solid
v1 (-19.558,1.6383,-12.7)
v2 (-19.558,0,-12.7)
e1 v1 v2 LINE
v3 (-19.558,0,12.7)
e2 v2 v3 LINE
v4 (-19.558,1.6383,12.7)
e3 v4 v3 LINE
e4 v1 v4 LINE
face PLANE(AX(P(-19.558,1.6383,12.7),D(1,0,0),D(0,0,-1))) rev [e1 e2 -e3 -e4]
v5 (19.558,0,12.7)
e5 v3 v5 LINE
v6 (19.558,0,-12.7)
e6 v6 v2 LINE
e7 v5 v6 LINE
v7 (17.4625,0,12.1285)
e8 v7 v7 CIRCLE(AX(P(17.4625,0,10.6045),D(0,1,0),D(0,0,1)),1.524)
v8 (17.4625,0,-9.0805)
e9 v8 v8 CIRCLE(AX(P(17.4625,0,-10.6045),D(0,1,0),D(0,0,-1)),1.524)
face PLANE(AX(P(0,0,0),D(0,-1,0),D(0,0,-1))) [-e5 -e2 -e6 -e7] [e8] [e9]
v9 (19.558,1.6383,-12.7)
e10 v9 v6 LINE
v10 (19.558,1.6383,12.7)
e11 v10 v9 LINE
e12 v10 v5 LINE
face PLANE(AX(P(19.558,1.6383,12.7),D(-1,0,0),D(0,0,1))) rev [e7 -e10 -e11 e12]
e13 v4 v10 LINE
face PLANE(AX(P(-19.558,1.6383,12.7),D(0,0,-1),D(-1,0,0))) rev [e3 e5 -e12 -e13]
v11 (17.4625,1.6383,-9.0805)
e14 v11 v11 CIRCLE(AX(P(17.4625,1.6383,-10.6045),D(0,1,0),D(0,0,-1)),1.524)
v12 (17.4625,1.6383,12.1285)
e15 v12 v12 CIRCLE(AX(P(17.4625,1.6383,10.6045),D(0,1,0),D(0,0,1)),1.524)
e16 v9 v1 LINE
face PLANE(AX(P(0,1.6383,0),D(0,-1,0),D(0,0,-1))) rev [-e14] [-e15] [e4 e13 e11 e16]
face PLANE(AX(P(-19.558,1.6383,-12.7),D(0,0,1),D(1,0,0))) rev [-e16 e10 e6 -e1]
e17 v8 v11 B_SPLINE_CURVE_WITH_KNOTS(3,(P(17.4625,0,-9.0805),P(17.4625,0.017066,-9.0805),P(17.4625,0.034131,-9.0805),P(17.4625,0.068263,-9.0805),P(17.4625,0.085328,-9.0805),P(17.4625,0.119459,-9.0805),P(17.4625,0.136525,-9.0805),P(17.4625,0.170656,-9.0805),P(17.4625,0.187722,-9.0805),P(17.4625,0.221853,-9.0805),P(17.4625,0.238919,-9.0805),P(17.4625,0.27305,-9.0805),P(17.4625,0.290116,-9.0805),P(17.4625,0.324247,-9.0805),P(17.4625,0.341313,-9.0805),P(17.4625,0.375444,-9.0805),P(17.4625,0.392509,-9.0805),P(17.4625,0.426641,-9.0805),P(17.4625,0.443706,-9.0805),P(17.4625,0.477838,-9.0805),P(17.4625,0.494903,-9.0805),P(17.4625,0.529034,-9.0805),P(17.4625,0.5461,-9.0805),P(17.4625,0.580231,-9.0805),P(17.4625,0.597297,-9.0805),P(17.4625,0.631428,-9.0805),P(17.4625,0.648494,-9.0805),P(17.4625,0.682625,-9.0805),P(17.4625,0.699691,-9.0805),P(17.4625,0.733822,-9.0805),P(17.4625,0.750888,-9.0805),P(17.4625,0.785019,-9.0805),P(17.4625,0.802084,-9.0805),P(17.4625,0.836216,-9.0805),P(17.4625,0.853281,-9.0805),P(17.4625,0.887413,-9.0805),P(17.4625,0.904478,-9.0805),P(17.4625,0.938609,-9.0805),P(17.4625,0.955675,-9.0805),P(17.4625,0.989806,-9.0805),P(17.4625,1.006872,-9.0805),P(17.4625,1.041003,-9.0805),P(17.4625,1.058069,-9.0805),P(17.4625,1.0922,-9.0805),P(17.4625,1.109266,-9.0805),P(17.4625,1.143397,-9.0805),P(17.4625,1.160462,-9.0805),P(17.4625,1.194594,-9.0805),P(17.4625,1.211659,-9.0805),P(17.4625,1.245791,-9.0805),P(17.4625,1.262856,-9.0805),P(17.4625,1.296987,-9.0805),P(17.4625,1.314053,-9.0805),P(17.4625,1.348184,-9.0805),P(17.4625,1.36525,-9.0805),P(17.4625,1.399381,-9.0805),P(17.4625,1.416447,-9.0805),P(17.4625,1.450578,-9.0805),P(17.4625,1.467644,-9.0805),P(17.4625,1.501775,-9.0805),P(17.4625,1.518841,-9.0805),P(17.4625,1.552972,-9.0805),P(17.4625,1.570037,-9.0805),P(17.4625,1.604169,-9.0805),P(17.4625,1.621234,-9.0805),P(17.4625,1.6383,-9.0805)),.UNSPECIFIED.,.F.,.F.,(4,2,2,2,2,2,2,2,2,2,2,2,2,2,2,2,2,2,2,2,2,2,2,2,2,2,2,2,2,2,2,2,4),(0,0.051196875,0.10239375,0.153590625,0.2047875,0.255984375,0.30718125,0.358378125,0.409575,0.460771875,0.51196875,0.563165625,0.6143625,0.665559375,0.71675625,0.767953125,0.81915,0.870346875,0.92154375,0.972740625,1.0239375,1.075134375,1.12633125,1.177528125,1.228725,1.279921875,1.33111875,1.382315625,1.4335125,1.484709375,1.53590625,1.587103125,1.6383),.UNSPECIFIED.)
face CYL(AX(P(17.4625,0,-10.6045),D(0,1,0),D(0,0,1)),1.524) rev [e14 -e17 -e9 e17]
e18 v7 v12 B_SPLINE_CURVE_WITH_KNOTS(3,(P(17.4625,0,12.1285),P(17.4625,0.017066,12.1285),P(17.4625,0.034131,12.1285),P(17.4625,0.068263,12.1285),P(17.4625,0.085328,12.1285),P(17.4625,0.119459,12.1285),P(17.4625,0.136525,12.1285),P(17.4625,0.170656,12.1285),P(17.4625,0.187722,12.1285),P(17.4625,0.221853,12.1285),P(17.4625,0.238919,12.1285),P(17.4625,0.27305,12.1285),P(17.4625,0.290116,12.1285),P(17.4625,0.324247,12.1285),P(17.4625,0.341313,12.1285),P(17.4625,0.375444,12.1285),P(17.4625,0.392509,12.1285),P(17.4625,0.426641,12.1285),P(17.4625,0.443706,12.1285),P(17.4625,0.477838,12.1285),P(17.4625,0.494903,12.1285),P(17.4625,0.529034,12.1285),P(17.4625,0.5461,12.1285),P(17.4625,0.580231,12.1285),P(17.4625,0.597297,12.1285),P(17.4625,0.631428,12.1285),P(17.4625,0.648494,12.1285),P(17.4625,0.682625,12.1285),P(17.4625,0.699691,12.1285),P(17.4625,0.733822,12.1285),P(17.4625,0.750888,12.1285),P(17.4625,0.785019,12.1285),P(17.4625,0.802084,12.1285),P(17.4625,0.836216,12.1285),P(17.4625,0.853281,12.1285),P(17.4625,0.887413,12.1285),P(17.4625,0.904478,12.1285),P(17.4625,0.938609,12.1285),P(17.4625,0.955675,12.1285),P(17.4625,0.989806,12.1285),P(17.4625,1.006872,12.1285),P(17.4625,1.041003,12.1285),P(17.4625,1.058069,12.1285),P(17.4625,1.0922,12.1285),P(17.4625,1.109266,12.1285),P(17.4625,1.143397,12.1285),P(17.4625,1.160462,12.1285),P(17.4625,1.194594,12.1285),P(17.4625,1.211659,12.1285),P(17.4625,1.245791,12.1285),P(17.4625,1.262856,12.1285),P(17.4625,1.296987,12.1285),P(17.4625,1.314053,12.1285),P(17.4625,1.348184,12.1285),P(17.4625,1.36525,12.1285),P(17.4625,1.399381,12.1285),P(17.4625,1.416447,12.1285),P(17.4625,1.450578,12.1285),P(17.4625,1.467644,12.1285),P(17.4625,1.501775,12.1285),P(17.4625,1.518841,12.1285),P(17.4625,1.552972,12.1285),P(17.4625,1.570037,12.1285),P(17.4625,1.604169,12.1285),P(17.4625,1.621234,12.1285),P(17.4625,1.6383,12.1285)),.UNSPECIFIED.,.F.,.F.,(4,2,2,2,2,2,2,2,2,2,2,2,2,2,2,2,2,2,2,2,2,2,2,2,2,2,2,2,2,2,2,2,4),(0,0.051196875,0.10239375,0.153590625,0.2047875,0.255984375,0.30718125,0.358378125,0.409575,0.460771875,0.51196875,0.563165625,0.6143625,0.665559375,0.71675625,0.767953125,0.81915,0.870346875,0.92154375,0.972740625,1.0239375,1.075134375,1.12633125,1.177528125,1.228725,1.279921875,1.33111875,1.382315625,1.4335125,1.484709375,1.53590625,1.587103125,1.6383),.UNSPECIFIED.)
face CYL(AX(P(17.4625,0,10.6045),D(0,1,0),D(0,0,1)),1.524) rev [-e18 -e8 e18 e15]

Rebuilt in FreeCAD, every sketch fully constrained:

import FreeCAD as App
import Part
import Sketcher
from FreeCAD import Vector
Q = App.Units.Quantity

doc = App.newDocument("Part")
params = doc.addObject("Spreadsheet::Sheet", "Params")
for row, (alias, value) in enumerate([
    ("sketch1_height", "1 in"),
    ("sketch1_width", "1.54 in"),
    ("pad1_length", "0.0645 in"),
    ("sketch2_diameter", "0.12 in"),
    ("pocket1_length", "0.0645 in"),
], start=1):
    params.set(f"A{row}", alias)
    params.set(f"B{row}", "=" + value)
    params.setAlias(f"B{row}", alias)

body = doc.addObject("PartDesign::Body", "Body")

sketch1 = body.newObject("Sketcher::SketchObject", "Sketch")
sketch1.AttachmentSupport = (doc.getObject("XZ_Plane"), [""])
sketch1.MapMode = "FlatFace"
sketch1.addGeometry([
    Part.LineSegment(Vector(-20, -13, 0), Vector(-20, 13, 0)),
    Part.LineSegment(Vector(-20, 13, 0), Vector(20, 13, 0)),
    Part.LineSegment(Vector(20, 13, 0), Vector(20, -13, 0)),
    Part.LineSegment(Vector(20, -13, 0), Vector(-20, -13, 0)),
], False)
sketch1.addConstraint([
    Sketcher.Constraint("Coincident", 0, 2, 1, 1),
    Sketcher.Constraint("Coincident", 1, 2, 2, 1),
    Sketcher.Constraint("Coincident", 2, 2, 3, 1),
    Sketcher.Constraint("Coincident", 3, 2, 0, 1),
    Sketcher.Constraint("Vertical", 0),
    Sketcher.Constraint("Horizontal", 1),
    Sketcher.Constraint("Vertical", 2),
    Sketcher.Constraint("Horizontal", 3),
    Sketcher.Constraint("Symmetric", 0, 2, 2, 2, -1, 1),
    Sketcher.Constraint("DistanceY", 0, 1, 0, 2, Q("1 in")),
    Sketcher.Constraint("DistanceX", 1, 1, 1, 2, Q("1.54 in")),
])
sketch1.setExpression("Constraints[9]", "Params.sketch1_height")
sketch1.setExpression("Constraints[10]", "Params.sketch1_width")
pad1 = body.newObject("PartDesign::Pad", "Pad")
pad1.Profile = sketch1
pad1.setExpression("Length", "Params.pad1_length")
pad1.Reversed = True

sketch2 = body.newObject("Sketcher::SketchObject", "Sketch001")
sketch2.AttachmentSupport = (doc.getObject("XZ_Plane"), [""])
sketch2.MapMode = "FlatFace"
sketch2.AttachmentOffset = App.Placement(Vector(0, 0, -0.0645 * 25.4), App.Rotation())
sketch2.addGeometry([
    Part.Circle(Vector(17.5, 10.6, 0), Vector(0, 0, 1), 1.5),
    Part.Circle(Vector(17.5, -10.6, 0), Vector(0, 0, 1), 1.5),
], False)
sketch2.addConstraint([
    Sketcher.Constraint("Equal", 0, 1),
    Sketcher.Constraint("Symmetric", 0, 3, 1, 3, -1),
    Sketcher.Constraint("Diameter", 0, Q("0.12 in")),
    Sketcher.Constraint("DistanceX", -1, 1, 0, 3, Q("0.6875 in")),
    Sketcher.Constraint("DistanceY", 1, 3, 0, 3, Q("0.835 in")),
])
sketch2.setExpression("Constraints[2]", "Params.sketch2_diameter")
pocket1 = body.newObject("PartDesign::Pocket", "Pocket")
pocket1.Profile = sketch2
pocket1.setExpression("Length", "Params.pocket1_length")
pocket1.Reversed = True

doc.recompute()
